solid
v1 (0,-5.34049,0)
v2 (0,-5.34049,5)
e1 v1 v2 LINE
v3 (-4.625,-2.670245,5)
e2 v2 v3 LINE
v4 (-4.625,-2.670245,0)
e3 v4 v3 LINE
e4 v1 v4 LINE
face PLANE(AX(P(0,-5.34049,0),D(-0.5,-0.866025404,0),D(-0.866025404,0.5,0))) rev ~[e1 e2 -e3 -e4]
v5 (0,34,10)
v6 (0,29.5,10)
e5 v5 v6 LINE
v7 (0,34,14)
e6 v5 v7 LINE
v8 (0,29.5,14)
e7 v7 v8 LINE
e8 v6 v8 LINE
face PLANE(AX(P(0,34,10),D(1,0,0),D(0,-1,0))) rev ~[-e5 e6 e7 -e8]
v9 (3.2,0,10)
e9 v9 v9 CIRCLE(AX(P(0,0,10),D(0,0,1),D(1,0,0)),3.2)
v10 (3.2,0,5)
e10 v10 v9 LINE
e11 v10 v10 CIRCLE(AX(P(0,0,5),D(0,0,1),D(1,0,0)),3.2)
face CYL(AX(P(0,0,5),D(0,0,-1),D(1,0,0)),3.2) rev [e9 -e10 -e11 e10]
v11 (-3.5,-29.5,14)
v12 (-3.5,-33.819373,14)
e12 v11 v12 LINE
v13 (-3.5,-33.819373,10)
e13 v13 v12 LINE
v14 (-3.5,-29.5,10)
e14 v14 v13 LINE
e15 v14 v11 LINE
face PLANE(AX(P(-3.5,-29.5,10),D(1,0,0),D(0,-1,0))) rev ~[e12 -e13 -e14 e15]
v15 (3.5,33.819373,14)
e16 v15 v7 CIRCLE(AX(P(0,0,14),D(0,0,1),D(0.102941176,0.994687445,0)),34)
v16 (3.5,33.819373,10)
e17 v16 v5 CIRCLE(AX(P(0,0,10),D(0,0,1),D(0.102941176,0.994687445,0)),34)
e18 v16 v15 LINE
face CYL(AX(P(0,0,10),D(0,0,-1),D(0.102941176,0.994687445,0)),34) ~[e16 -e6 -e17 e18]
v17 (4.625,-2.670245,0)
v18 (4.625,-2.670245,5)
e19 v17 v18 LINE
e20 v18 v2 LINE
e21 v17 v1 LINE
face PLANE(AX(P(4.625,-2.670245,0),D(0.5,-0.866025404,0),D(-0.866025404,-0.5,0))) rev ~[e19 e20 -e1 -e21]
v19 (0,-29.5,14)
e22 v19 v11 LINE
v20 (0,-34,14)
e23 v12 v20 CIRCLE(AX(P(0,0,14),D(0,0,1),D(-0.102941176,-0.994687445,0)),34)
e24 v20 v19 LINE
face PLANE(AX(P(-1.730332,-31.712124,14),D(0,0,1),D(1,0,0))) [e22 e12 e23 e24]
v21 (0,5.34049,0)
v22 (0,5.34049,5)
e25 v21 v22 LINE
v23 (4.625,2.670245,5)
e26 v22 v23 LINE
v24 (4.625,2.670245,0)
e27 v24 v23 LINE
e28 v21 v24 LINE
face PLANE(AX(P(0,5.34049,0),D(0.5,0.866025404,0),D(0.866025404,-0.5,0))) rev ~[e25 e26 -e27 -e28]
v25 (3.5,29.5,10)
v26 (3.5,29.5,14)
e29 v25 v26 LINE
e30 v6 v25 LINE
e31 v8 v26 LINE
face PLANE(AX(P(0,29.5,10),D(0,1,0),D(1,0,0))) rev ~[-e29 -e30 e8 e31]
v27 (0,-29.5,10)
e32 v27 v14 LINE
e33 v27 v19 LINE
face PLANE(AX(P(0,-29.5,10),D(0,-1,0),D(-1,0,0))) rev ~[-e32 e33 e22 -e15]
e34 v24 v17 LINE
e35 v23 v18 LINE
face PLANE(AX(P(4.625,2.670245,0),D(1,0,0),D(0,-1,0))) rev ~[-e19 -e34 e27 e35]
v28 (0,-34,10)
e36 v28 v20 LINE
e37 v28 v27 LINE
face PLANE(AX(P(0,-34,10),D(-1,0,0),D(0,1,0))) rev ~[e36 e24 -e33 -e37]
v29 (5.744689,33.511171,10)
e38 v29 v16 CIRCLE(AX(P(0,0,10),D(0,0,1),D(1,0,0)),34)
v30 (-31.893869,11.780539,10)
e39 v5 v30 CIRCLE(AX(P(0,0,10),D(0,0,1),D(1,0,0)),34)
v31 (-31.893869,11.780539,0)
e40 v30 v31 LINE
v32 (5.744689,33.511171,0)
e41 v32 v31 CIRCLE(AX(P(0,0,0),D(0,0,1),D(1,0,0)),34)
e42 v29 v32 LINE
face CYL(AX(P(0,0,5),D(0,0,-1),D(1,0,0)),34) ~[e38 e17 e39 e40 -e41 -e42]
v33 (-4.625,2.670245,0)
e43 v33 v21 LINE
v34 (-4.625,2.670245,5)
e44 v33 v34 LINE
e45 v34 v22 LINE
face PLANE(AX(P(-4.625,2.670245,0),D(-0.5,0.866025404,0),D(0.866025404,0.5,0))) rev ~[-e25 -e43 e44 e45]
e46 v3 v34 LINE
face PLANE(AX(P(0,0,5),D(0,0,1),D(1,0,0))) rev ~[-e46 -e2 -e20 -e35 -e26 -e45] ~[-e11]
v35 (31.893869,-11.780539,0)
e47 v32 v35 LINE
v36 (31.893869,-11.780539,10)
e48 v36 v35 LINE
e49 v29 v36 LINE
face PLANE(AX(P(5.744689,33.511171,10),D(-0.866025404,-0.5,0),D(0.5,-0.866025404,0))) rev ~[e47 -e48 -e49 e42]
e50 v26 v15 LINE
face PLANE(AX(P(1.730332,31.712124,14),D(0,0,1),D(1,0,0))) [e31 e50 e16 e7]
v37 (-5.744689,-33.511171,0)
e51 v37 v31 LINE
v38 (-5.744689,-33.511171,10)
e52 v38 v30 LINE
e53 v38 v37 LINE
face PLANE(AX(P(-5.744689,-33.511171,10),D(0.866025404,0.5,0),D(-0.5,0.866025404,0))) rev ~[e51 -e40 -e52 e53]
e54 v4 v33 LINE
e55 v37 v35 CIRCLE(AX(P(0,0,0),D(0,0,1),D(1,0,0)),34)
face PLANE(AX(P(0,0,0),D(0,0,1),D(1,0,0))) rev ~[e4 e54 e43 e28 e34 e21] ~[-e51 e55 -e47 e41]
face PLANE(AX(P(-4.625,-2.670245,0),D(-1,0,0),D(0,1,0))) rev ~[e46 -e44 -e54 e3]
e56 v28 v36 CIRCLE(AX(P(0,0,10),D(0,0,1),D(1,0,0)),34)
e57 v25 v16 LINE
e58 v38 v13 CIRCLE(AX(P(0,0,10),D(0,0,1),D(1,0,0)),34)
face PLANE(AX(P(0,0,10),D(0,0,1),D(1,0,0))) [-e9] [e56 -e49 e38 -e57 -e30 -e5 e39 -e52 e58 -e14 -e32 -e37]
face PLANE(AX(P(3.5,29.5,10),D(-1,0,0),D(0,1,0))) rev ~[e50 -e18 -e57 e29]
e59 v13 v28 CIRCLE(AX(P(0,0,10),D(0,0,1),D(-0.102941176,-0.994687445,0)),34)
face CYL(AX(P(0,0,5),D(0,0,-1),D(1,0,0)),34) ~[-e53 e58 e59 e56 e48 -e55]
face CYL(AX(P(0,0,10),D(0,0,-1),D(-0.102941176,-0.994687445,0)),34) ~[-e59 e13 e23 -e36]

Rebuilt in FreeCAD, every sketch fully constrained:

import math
import FreeCAD as App
import Part
import Sketcher
from FreeCAD import Vector
Q = App.Units.Quantity


def add_polygon(sketch, points):
    """Adds a closed chain of lines whose ends are joined by coincident constraints."""
    first, n = sketch.GeometryCount, len(points)
    for a, b in zip(points, points[1:] + points[:1]):
        sketch.addGeometry(Part.LineSegment(App.Vector(*a, 0), App.Vector(*b, 0)), False)
    for i in range(n):
        sketch.addConstraint(Sketcher.Constraint("Coincident", first + i, 2, first + (i + 1) % n, 1))

doc = App.newDocument("Part")
params = doc.addObject("Spreadsheet::Sheet", "Params")
for row, (alias, value) in enumerate([
    ("sketch1_diameter", "68 mm"),
    ("pad1_length", "5 mm"),
    ("sketch2_diameter", "68 mm"),
    ("sketch2_diameter2", "6.4 mm"),
    ("pad2_length", "5 mm"),
    ("sketch3_radius", "34 mm"),
    ("sketch4_radius", "34 mm"),
    ("sketch4_width", "3.5 mm"),
    ("sketch4_height", "4.5 mm"),
    ("pad3_length", "4 mm"),
], start=1):
    params.set(f"A{row}", alias)
    params.set(f"B{row}", "=" + value)
    params.setAlias(f"B{row}", alias)

body = doc.addObject("PartDesign::Body", "Body")

# Sketch on XY plane
sketch1 = body.newObject("Sketcher::SketchObject", "Sketch")
sketch1.AttachmentSupport = (doc.getObject("XY_Plane"), [""])
sketch1.MapMode = "FlatFace"
sketch1.addGeometry(Part.Circle(Vector(0, 0, 0), Vector(0, 0, 1), 34), False)  # 0
add_polygon(sketch1, [(-5, 3), (0, 5), (5, 3), (5, -3), (0, -5), (-5, -3)])  # lines 1-6
sketch1.addConstraint([
    Sketcher.Constraint("Vertical", 3),
    Sketcher.Constraint("Vertical", 6),
    Sketcher.Constraint("Coincident", 0, 3, -1, 1),
    Sketcher.Constraint("Symmetric", 1, 2, 4, 2, -1, 1),
    Sketcher.Constraint("Symmetric", 2, 2, 5, 2, -1, 1),
    Sketcher.Constraint("PointOnObject", 1, 2, -2),
    Sketcher.Constraint("Parallel", 1, 4),
    Sketcher.Constraint("Horizontal", 3, 2, 5, 2),
    Sketcher.Constraint("Diameter", 0, Q("68 mm")),
    Sketcher.Constraint("Angle", 1, Q("30 deg")),
    Sketcher.Constraint("DistanceX", 5, 2, 3, 2, Q("9.25 mm")),
    Sketcher.Constraint("DistanceY", 3, 2, 3, 1, Q("5.34049 mm")),
])
sketch1.setExpression("Constraints[14]", "Params.sketch1_diameter")
pad1 = body.newObject("PartDesign::Pad", "Pad")
pad1.Profile = sketch1
pad1.setExpression("Length", "Params.pad1_length")

# Sketch on XY plane
sketch2 = body.newObject("Sketcher::SketchObject", "Sketch001")
sketch2.AttachmentSupport = (doc.getObject("XY_Plane"), [""])
sketch2.MapMode = "FlatFace"
sketch2.AttachmentOffset = App.Placement(Vector(0, 0, 5), App.Rotation())
sketch2.addGeometry([
    Part.Circle(Vector(0, 0, 0), Vector(0, 0, 1), 34),
    Part.Circle(Vector(0, 0, 0), Vector(0, 0, 1), 3.2),
], False)
sketch2.addConstraint([
    Sketcher.Constraint("Coincident", 0, 3, -1, 1),
    Sketcher.Constraint("Coincident", 1, 3, -1, 1),
    Sketcher.Constraint("Diameter", 0, Q("68 mm")),
    Sketcher.Constraint("Diameter", 1, Q("6.4 mm")),
])
sketch2.setExpression("Constraints[2]", "Params.sketch2_diameter")
sketch2.setExpression("Constraints[3]", "Params.sketch2_diameter2")
pad2 = body.newObject("PartDesign::Pad", "Pad001")
pad2.Profile = sketch2
pad2.setExpression("Length", "Params.pad2_length")

# Sketch on XY plane
sketch3 = body.newObject("Sketcher::SketchObject", "Sketch002")
sketch3.AttachmentSupport = (doc.getObject("XY_Plane"), [""])
sketch3.MapMode = "FlatFace"
sketch3.AttachmentOffset = App.Placement(Vector(0, 0, 10), App.Rotation())
sketch3.addGeometry([
    Part.ArcOfCircle(Part.Circle(Vector(0, 0, 0), Vector(0, 0, 1), 34), math.radians(0), math.radians(80)),  # 0
    Part.LineSegment(Vector(6, 34, 0), Vector(32, -12, 0)),  # 1
    Part.ArcOfCircle(Part.Circle(Vector(0, 0, 0), Vector(0, 0, 1), 34), math.radians(-20), math.radians(0)),  # 2
    Part.LineSegment(Vector(-6, -34, 0), Vector(-32, 12, 0)),  # 3
    Part.ArcOfCircle(Part.Circle(Vector(0, 0, 0), Vector(0, 0, 1), 34), math.radians(160), math.radians(260)),  # 4
], False)
sketch3.addConstraint([
    Sketcher.Constraint("Coincident", 0, 2, 1, 1),
    Sketcher.Constraint("Coincident", 1, 2, 2, 1),
    Sketcher.Constraint("Tangent", 2, 2, 0, 1),
    Sketcher.Constraint("Coincident", 3, 1, 4, 2),
    Sketcher.Constraint("Coincident", 4, 1, 3, 2),
    Sketcher.Constraint("Coincident", 0, 3, -1, 1),
    Sketcher.Constraint("Coincident", 4, 3, -1, 1),
    Sketcher.Constraint("Equal", 0, 2),
    Sketcher.Constraint("Equal", 2, 4),
    Sketcher.Constraint("PointOnObject", 2, 2, -1),
    Sketcher.Constraint("Parallel", 1, 3),
    Sketcher.Constraint("Equal", 1, 3),
    Sketcher.Constraint("Radius", 0, Q("34 mm")),
    Sketcher.Constraint("Angle", 1, Q("-60 deg")),
    Sketcher.Constraint("Distance", 1, Q("52.298361 mm")),
])
sketch3.setExpression("Constraints[12]", "Params.sketch3_radius")
pocket1 = body.newObject("PartDesign::Pocket", "Pocket")
pocket1.Profile = sketch3
pocket1.Type = "ThroughAll"

# Sketch on XY plane
sketch4 = body.newObject("Sketcher::SketchObject", "Sketch003")
sketch4.AttachmentSupport = (doc.getObject("XY_Plane"), [""])
sketch4.MapMode = "FlatFace"
sketch4.AttachmentOffset = App.Placement(Vector(0, 0, 10), App.Rotation())
sketch4.addGeometry([
    Part.ArcOfCircle(Part.Circle(Vector(0, 0, 0), Vector(0, 0, 1), 34), math.radians(84.09), math.radians(90)),  # 0
    Part.LineSegment(Vector(0, 34, 0), Vector(0, 29.5, 0)),  # 1
    Part.LineSegment(Vector(0, 29.5, 0), Vector(3.5, 29.5, 0)),  # 2
    Part.LineSegment(Vector(3.5, 29.5, 0), Vector(3.5, 33.8, 0)),  # 3
    Part.LineSegment(Vector(-3.5, -29.5, 0), Vector(-3.5, -33.8, 0)),  # 4
    Part.ArcOfCircle(Part.Circle(Vector(0, 0, 0), Vector(0, 0, 1), 34), math.radians(-95.91), math.radians(-90)),  # 5
    Part.LineSegment(Vector(0, -34, 0), Vector(0, -29.5, 0)),  # 6
    Part.LineSegment(Vector(0, -29.5, 0), Vector(-3.5, -29.5, 0)),  # 7
], False)
sketch4.addConstraint([
    Sketcher.Constraint("Coincident", 0, 2, 1, 1),
    Sketcher.Constraint("Coincident", 1, 2, 2, 1),
    Sketcher.Constraint("Coincident", 2, 2, 3, 1),
    Sketcher.Constraint("Coincident", 3, 2, 0, 1),
    Sketcher.Constraint("Coincident", 4, 2, 5, 1),
    Sketcher.Constraint("Coincident", 5, 2, 6, 1),
    Sketcher.Constraint("Coincident", 6, 2, 7, 1),
    Sketcher.Constraint("Coincident", 7, 2, 4, 1),
    Sketcher.Constraint("Vertical", 1),
    Sketcher.Constraint("Horizontal", 2),
    Sketcher.Constraint("Vertical", 3),
    Sketcher.Constraint("Vertical", 4),
    Sketcher.Constraint("Vertical", 6),
    Sketcher.Constraint("Horizontal", 7),
    Sketcher.Constraint("Coincident", 0, 3, -1, 1),
    Sketcher.Constraint("Coincident", 5, 3, -1, 1),
    Sketcher.Constraint("Equal", 0, 5),
    Sketcher.Constraint("Symmetric", 1, 2, 6, 2, -1, 1),
    Sketcher.Constraint("PointOnObject", 0, 2, -2),
    Sketcher.Constraint("Equal", 2, 7),
    Sketcher.Constraint("Radius", 0, Q("34 mm")),
    Sketcher.Constraint("DistanceX", 2, 1, 2, 2, Q("3.5 mm")),
    Sketcher.Constraint("DistanceY", 1, 2, 1, 1, Q("4.5 mm")),
])
sketch4.setExpression("Constraints[20]", "Params.sketch4_radius")
sketch4.setExpression("Constraints[21]", "Params.sketch4_width")
sketch4.setExpression("Constraints[22]", "Params.sketch4_height")
pad3 = body.newObject("PartDesign::Pad", "Pad002")
pad3.Profile = sketch4
pad3.setExpression("Length", "Params.pad3_length")

doc.recompute()
